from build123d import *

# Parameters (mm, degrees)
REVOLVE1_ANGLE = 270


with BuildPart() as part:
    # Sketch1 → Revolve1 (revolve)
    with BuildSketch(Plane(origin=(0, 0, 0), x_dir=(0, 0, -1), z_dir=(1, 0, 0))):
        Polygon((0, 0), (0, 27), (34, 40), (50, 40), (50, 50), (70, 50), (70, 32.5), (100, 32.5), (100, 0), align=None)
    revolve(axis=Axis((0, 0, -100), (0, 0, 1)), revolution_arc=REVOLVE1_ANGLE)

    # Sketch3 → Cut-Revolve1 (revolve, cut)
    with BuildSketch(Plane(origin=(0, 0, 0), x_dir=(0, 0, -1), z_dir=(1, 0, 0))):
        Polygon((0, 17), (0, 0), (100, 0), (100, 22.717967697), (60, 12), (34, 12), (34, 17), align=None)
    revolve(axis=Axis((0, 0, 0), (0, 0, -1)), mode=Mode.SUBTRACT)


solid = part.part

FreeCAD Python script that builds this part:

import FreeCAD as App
import Part
import Sketcher

V = App.Vector
Q = App.Units.Quantity

doc = App.newDocument("Part")
params = doc.addObject("Spreadsheet::Sheet", "Params")
for row, (alias, value) in enumerate([
    ("sketch1_width", "27 mm"),
    ("sketch1_width2", "10 mm"),
    ("sketch1_height", "100 mm"),
    ("sketch1_height2", "30 mm"),
    ("sketch1_height3", "20 mm"),
    ("revolution_angle", "270 deg"),
    ("sketch2_width", "17 mm"),
    ("sketch2_width2", "5 mm"),
    ("sketch2_height", "100 mm"),
    ("sketch2_height2", "26 mm"),
    ("sketch2_height3", "34 mm"),
    ("groove_angle", "360 deg"),
], start=1):
    params.set(f"A{row}", alias)
    params.set(f"B{row}", "=" + value)
    params.setAlias(f"B{row}", alias)

body = doc.addObject("PartDesign::Body", "Body")

# Sketch on YZ plane
sketch1 = body.newObject("Sketcher::SketchObject", "Sketch")
sketch1.AttachmentSupport = (doc.getObject("YZ_Plane"), [""])
sketch1.MapMode = "FlatFace"
sketch1.addGeometry([
    Part.LineSegment(V(27, 0, 0), V(0, 0, 0)),  # 0
    Part.LineSegment(V(0, 0, 0), V(0, -100, 0)),  # 1
    Part.LineSegment(V(0, -100, 0), V(32, -100, 0)),  # 2
    Part.LineSegment(V(32, -100, 0), V(32, -70, 0)),  # 3
    Part.LineSegment(V(32, -70, 0), V(50, -70, 0)),  # 4
    Part.LineSegment(V(50, -70, 0), V(50, -50, 0)),  # 5
    Part.LineSegment(V(50, -50, 0), V(40, -50, 0)),  # 6
    Part.LineSegment(V(40, -50, 0), V(40, -34, 0)),  # 7
    Part.LineSegment(V(40, -34, 0), V(27, 0, 0)),  # 8
], False)
sketch1.addConstraint([
    Sketcher.Constraint("Coincident", 0, 2, 1, 1),
    Sketcher.Constraint("Coincident", 1, 2, 2, 1),
    Sketcher.Constraint("Coincident", 2, 2, 3, 1),
    Sketcher.Constraint("Coincident", 3, 2, 4, 1),
    Sketcher.Constraint("Coincident", 4, 2, 5, 1),
    Sketcher.Constraint("Coincident", 5, 2, 6, 1),
    Sketcher.Constraint("Coincident", 6, 2, 7, 1),
    Sketcher.Constraint("Coincident", 7, 2, 8, 1),
    Sketcher.Constraint("Coincident", 8, 2, 0, 1),
    Sketcher.Constraint("Horizontal", 0),
    Sketcher.Constraint("Vertical", 1),
    Sketcher.Constraint("Horizontal", 2),
    Sketcher.Constraint("Vertical", 3),
    Sketcher.Constraint("Horizontal", 4),
    Sketcher.Constraint("Vertical", 5),
    Sketcher.Constraint("Horizontal", 6),
    Sketcher.Constraint("Vertical", 7),
    Sketcher.Constraint("Coincident", 0, 2, -1, 1),
    Sketcher.Constraint("DistanceX", 0, 2, 0, 1, 27.0),
    Sketcher.Constraint("DistanceX", 6, 2, 6, 1, 10.0),
    Sketcher.Constraint("DistanceY", 1, 2, 1, 1, 100.0),
    Sketcher.Constraint("DistanceY", 3, 1, 3, 2, 30.0),
    Sketcher.Constraint("DistanceY", 5, 1, 5, 2, 20.0),
    Sketcher.Constraint("DistanceY", 7, 1, 7, 2, 16.0),
    Sketcher.Constraint("DistanceX", 2, 1, 2, 2, 32.5),
    Sketcher.Constraint("DistanceX", 4, 1, 4, 2, 17.5),
])
sketch1.setExpression("Constraints[18]", "Params.sketch1_width")
sketch1.setExpression("Constraints[19]", "Params.sketch1_width2")
sketch1.setExpression("Constraints[20]", "Params.sketch1_height")
sketch1.setExpression("Constraints[21]", "Params.sketch1_height2")
sketch1.setExpression("Constraints[22]", "Params.sketch1_height3")
revolution = body.newObject("PartDesign::Revolution", "Revolution")
revolution.Profile = sketch1
revolution.ReferenceAxis = (sketch1, ["V_Axis"])
revolution.setExpression("Angle", "Params.revolution_angle")

# Sketch on YZ plane
sketch2 = body.newObject("Sketcher::SketchObject", "Sketch001")
sketch2.AttachmentSupport = (doc.getObject("YZ_Plane"), [""])
sketch2.MapMode = "FlatFace"
sketch2.addGeometry([
    Part.LineSegment(V(17, 0, 0), V(0, 0, 0)),  # 0
    Part.LineSegment(V(0, 0, 0), V(0, -100, 0)),  # 1
    Part.LineSegment(V(0, -100, 0), V(23, -100, 0)),  # 2
    Part.LineSegment(V(23, -100, 0), V(12, -60, 0)),  # 3
    Part.LineSegment(V(12, -60, 0), V(12, -34, 0)),  # 4
    Part.LineSegment(V(12, -34, 0), V(17, -34, 0)),  # 5
    Part.LineSegment(V(17, -34, 0), V(17, 0, 0)),  # 6
], False)
sketch2.addConstraint([
    Sketcher.Constraint("Coincident", 0, 2, 1, 1),
    Sketcher.Constraint("Coincident", 1, 2, 2, 1),
    Sketcher.Constraint("Coincident", 2, 2, 3, 1),
    Sketcher.Constraint("Coincident", 3, 2, 4, 1),
    Sketcher.Constraint("Coincident", 4, 2, 5, 1),
    Sketcher.Constraint("Coincident", 5, 2, 6, 1),
    Sketcher.Constraint("Coincident", 6, 2, 0, 1),
    Sketcher.Constraint("Horizontal", 0),
    Sketcher.Constraint("Vertical", 1),
    Sketcher.Constraint("Horizontal", 2),
    Sketcher.Constraint("Vertical", 4),
    Sketcher.Constraint("Horizontal", 5),
    Sketcher.Constraint("Vertical", 6),
    Sketcher.Constraint("Coincident", 0, 2, -1, 1),
    Sketcher.Constraint("DistanceX", 0, 2, 0, 1, 17.0),
    Sketcher.Constraint("DistanceX", 5, 1, 5, 2, 5.0),
    Sketcher.Constraint("DistanceY", 1, 2, 1, 1, 100.0),
    Sketcher.Constraint("DistanceY", 4, 1, 4, 2, 26.0),
    Sketcher.Constraint("DistanceY", 6, 1, 6, 2, 34.0),
    Sketcher.Constraint("Angle", 3, Q("105 deg")),
])
sketch2.setExpression("Constraints[14]", "Params.sketch2_width")
sketch2.setExpression("Constraints[15]", "Params.sketch2_width2")
sketch2.setExpression("Constraints[16]", "Params.sketch2_height")
sketch2.setExpression("Constraints[17]", "Params.sketch2_height2")
sketch2.setExpression("Constraints[18]", "Params.sketch2_height3")
groove = body.newObject("PartDesign::Groove", "Groove")
groove.Profile = sketch2
groove.ReferenceAxis = (sketch2, ["V_Axis"])
groove.setExpression("Angle", "Params.groove_angle")

doc.recompute()
